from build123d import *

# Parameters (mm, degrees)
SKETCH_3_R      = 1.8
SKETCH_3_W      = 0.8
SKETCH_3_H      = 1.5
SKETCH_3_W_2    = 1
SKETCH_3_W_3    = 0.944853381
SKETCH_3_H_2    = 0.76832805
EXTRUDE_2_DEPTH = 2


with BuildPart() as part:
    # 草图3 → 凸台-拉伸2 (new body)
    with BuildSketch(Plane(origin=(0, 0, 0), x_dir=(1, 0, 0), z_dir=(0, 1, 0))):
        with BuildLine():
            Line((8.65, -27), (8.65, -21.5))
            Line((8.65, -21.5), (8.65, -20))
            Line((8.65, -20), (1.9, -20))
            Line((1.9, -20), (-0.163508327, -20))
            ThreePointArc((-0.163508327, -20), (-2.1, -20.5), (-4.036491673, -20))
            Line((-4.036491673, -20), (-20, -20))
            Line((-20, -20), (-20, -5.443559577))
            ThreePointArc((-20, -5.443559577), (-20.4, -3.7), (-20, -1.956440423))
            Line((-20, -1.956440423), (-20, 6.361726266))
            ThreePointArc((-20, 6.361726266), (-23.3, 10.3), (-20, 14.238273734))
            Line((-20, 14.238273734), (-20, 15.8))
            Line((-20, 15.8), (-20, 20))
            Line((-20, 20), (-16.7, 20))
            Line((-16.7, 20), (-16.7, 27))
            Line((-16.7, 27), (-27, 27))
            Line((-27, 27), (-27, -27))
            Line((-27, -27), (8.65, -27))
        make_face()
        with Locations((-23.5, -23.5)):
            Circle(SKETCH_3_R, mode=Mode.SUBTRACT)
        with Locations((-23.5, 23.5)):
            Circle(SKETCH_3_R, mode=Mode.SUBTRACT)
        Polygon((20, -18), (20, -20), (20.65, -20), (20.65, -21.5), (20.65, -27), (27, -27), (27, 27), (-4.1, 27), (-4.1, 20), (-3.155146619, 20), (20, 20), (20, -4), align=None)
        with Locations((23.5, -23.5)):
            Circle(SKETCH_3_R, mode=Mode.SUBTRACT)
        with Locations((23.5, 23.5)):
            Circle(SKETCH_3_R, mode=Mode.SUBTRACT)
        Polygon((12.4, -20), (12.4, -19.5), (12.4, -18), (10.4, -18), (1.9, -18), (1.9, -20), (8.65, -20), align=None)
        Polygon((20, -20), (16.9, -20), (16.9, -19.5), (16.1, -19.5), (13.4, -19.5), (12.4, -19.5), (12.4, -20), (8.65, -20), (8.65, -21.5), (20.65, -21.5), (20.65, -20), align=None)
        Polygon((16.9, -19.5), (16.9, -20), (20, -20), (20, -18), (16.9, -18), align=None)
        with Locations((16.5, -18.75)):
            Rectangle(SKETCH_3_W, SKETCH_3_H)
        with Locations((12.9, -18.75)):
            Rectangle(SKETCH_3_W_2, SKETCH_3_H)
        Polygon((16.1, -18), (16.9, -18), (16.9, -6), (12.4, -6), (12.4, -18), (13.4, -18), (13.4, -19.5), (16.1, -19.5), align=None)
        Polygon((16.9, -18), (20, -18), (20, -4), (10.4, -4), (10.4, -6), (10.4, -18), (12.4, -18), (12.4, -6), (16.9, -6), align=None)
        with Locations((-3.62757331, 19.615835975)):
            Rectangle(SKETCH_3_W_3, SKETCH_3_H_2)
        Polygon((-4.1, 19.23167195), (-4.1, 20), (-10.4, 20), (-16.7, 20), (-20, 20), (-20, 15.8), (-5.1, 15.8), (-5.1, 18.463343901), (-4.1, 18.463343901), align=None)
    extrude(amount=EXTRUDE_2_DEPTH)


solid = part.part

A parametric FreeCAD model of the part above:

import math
import FreeCAD as App
import Part
import Sketcher

doc = App.newDocument("Part")
params = doc.addObject("Spreadsheet::Sheet", "Params")
for row, (alias, value) in enumerate([
    ("sketch1_radius", "4 mm"),
    ("sketch1_diameter", "3.6 mm"),
    ("sketch1_width", "12 mm"),
    ("sketch1_width2", "1 mm"),
    ("sketch1_height", "54 mm"),
    ("pad1_length", "2 mm"),
], start=1):
    params.set(f"A{row}", alias)
    params.set(f"B{row}", "=" + value)
    params.setAlias(f"B{row}", alias)

body = doc.addObject("PartDesign::Body", "Body")

sketch1 = body.newObject("Sketcher::SketchObject", "Sketch")
sketch1.AttachmentSupport = (doc.getObject("XZ_Plane"), [""])
sketch1.MapMode = "FlatFace"
sketch1.addGeometry([
    Part.LineSegment(App.Vector(8.7, 27, 0), App.Vector(8.7, 21.5, 0)),
    Part.LineSegment(App.Vector(8.7, 21.5, 0), App.Vector(20.6, 21.5, 0)),
    Part.LineSegment(App.Vector(20.6, 21.5, 0), App.Vector(20.6, 27, 0)),
    Part.LineSegment(App.Vector(20.6, 27, 0), App.Vector(27, 27, 0)),
    Part.LineSegment(App.Vector(27, 27, 0), App.Vector(27, -27, 0)),
    Part.LineSegment(App.Vector(27, -27, 0), App.Vector(-4.1, -27, 0)),
    Part.LineSegment(App.Vector(-4.1, -27, 0), App.Vector(-4.1, -20, 0)),
    Part.LineSegment(App.Vector(-4.1, -20, 0), App.Vector(-16.7, -20, 0)),
    Part.LineSegment(App.Vector(-16.7, -20, 0), App.Vector(-16.7, -27, 0)),
    Part.LineSegment(App.Vector(-16.7, -27, 0), App.Vector(-27, -27, 0)),
    Part.LineSegment(App.Vector(-27, -27, 0), App.Vector(-27, 27, 0)),
    Part.LineSegment(App.Vector(-27, 27, 0), App.Vector(8.7, 27, 0)),
    Part.LineSegment(App.Vector(-4.1, -19.2, 0), App.Vector(-3.2, -19.2, 0)),
    Part.LineSegment(App.Vector(-3.2, -19.2, 0), App.Vector(-3.2, -20, 0)),
    Part.LineSegment(App.Vector(-3.2, -20, 0), App.Vector(20, -20, 0)),
    Part.LineSegment(App.Vector(20, -20, 0), App.Vector(20, 4, 0)),
    Part.LineSegment(App.Vector(20, 4, 0), App.Vector(10.4, 4, 0)),
    Part.LineSegment(App.Vector(10.4, 4, 0), App.Vector(10.4, 18, 0)),
    Part.LineSegment(App.Vector(10.4, 18, 0), App.Vector(1.9, 18, 0)),
    Part.LineSegment(App.Vector(1.9, 18, 0), App.Vector(1.9, 20, 0)),
    Part.LineSegment(App.Vector(1.9, 20, 0), App.Vector(-0.2, 20, 0)),
    Part.ArcOfCircle(Part.Circle(App.Vector(-2.1, 16.5, 0), App.Vector(0, 0, 1), 4), math.radians(61), math.radians(119)),
    Part.LineSegment(App.Vector(-4, 20, 0), App.Vector(-20, 20, 0)),
    Part.LineSegment(App.Vector(-20, 20, 0), App.Vector(-20, 5.4, 0)),
    Part.ArcOfCircle(Part.Circle(App.Vector(-16.4, 3.7, 0), App.Vector(0, 0, 1), 4), math.radians(154), math.radians(206)),
    Part.LineSegment(App.Vector(-20, 2, 0), App.Vector(-20, -6.4, 0)),
    Part.ArcOfCircle(Part.Circle(App.Vector(-19.3, -10.3, 0), App.Vector(0, 0, 1), 4), math.radians(100), math.radians(260)),
    Part.LineSegment(App.Vector(-20, -14.2, 0), App.Vector(-20, -15.8, 0)),
    Part.LineSegment(App.Vector(-20, -15.8, 0), App.Vector(-5.1, -15.8, 0)),
    Part.LineSegment(App.Vector(-5.1, -15.8, 0), App.Vector(-5.1, -18.5, 0)),
    Part.LineSegment(App.Vector(-5.1, -18.5, 0), App.Vector(-4.1, -18.5, 0)),
    Part.LineSegment(App.Vector(-4.1, -18.5, 0), App.Vector(-4.1, -19.2, 0)),
    Part.Circle(App.Vector(-23.5, 23.5, 0), App.Vector(0, 0, 1), 1.8),
    Part.Circle(App.Vector(-23.5, -23.5, 0), App.Vector(0, 0, 1), 1.8),
    Part.Circle(App.Vector(23.5, 23.5, 0), App.Vector(0, 0, 1), 1.8),
    Part.Circle(App.Vector(23.5, -23.5, 0), App.Vector(0, 0, 1), 1.8),
], False)
sketch1.addConstraint([
    Sketcher.Constraint("Coincident", 0, 2, 1, 1),
    Sketcher.Constraint("Coincident", 1, 2, 2, 1),
    Sketcher.Constraint("Coincident", 2, 2, 3, 1),
    Sketcher.Constraint("Coincident", 3, 2, 4, 1),
    Sketcher.Constraint("Coincident", 4, 2, 5, 1),
    Sketcher.Constraint("Coincident", 5, 2, 6, 1),
    Sketcher.Constraint("Coincident", 6, 2, 7, 1),
    Sketcher.Constraint("Coincident", 7, 2, 8, 1),
    Sketcher.Constraint("Coincident", 8, 2, 9, 1),
    Sketcher.Constraint("Coincident", 9, 2, 10, 1),
    Sketcher.Constraint("Coincident", 10, 2, 11, 1),
    Sketcher.Constraint("Coincident", 11, 2, 0, 1),
    Sketcher.Constraint("Coincident", 12, 2, 13, 1),
    Sketcher.Constraint("Coincident", 13, 2, 14, 1),
    Sketcher.Constraint("Coincident", 14, 2, 15, 1),
    Sketcher.Constraint("Coincident", 15, 2, 16, 1),
    Sketcher.Constraint("Coincident", 16, 2, 17, 1),
    Sketcher.Constraint("Coincident", 17, 2, 18, 1),
    Sketcher.Constraint("Coincident", 18, 2, 19, 1),
    Sketcher.Constraint("Coincident", 19, 2, 20, 1),
    Sketcher.Constraint("Coincident", 20, 2, 21, 1),
    Sketcher.Constraint("Coincident", 21, 2, 22, 1),
    Sketcher.Constraint("Coincident", 22, 2, 23, 1),
    Sketcher.Constraint("Coincident", 23, 2, 24, 1),
    Sketcher.Constraint("Coincident", 24, 2, 25, 1),
    Sketcher.Constraint("Coincident", 25, 2, 26, 1),
    Sketcher.Constraint("Coincident", 26, 2, 27, 1),
    Sketcher.Constraint("Coincident", 27, 2, 28, 1),
    Sketcher.Constraint("Coincident", 28, 2, 29, 1),
    Sketcher.Constraint("Coincident", 29, 2, 30, 1),
    Sketcher.Constraint("Coincident", 30, 2, 31, 1),
    Sketcher.Constraint("Coincident", 31, 2, 12, 1),
    Sketcher.Constraint("Vertical", 0),
    Sketcher.Constraint("Horizontal", 1),
    Sketcher.Constraint("Vertical", 2),
    Sketcher.Constraint("Horizontal", 3),
    Sketcher.Constraint("Vertical", 4),
    Sketcher.Constraint("Horizontal", 5),
    Sketcher.Constraint("Vertical", 6),
    Sketcher.Constraint("Horizontal", 7),
    Sketcher.Constraint("Vertical", 8),
    Sketcher.Constraint("Horizontal", 9),
    Sketcher.Constraint("Vertical", 10),
    Sketcher.Constraint("Horizontal", 11),
    Sketcher.Constraint("Horizontal", 12),
    Sketcher.Constraint("Vertical", 13),
    Sketcher.Constraint("Horizontal", 14),
    Sketcher.Constraint("Vertical", 15),
    Sketcher.Constraint("Horizontal", 16),
    Sketcher.Constraint("Vertical", 17),
    Sketcher.Constraint("Horizontal", 18),
    Sketcher.Constraint("Vertical", 19),
    Sketcher.Constraint("Horizontal", 20),
    Sketcher.Constraint("Horizontal", 22),
    Sketcher.Constraint("Vertical", 23),
    Sketcher.Constraint("Vertical", 25),
    Sketcher.Constraint("Vertical", 27),
    Sketcher.Constraint("Horizontal", 28),
    Sketcher.Constraint("Vertical", 29),
    Sketcher.Constraint("Horizontal", 30),
    Sketcher.Constraint("Vertical", 31),
    Sketcher.Constraint("Equal", 21, 24),
    Sketcher.Constraint("Equal", 24, 26),
    Sketcher.Constraint("Equal", 32, 33),
    Sketcher.Constraint("Equal", 33, 34),
    Sketcher.Constraint("Equal", 34, 35),
    Sketcher.Constraint("Symmetric", 33, 3, 34, 3, -1, 1),
    Sketcher.Constraint("Symmetric", 32, 3, 35, 3, -1, 1),
    Sketcher.Constraint("Symmetric", 3, 2, 9, 2, -1, 1),
    Sketcher.Constraint("Symmetric", 14, 2, 22, 2, -1, 1),
    Sketcher.Constraint("Symmetric", 32, 3, 34, 3, -2),
    Sketcher.Constraint("Horizontal", 5, 2, 8, 2),
    Sketcher.Constraint("Horizontal", 3, 2, 10, 2),
    Sketcher.Constraint("Horizontal", 7, 2, 13, 2),
    Sketcher.Constraint("Horizontal", 20, 2, 21, 2),
    Sketcher.Constraint("Vertical", 23, 2, 24, 2),
    Sketcher.Constraint("Vertical", 25, 2, 26, 2),
    Sketcher.Constraint("Vertical", 6, 2, 30, 2),
    Sketcher.Constraint("Equal", 13, 31),
    Sketcher.Constraint("Radius", 21, 4.0),
    Sketcher.Constraint("Diameter", 32, 3.6),
    Sketcher.Constraint("DistanceX", 1, 1, 1, 2, 12.0),
    Sketcher.Constraint("DistanceX", 30, 1, 30, 2, 1.0),
    Sketcher.Constraint("DistanceY", 4, 2, 4, 1, 54.0),
    Sketcher.Constraint("DistanceY", 6, 1, 6, 2, 7.0),
    Sketcher.Constraint("DistanceY", 15, 1, 15, 2, 24.0),
    Sketcher.Constraint("DistanceY", 17, 1, 17, 2, 14.0),
    Sketcher.Constraint("DistanceX", 5, 2, 5, 1, 31.1),
    Sketcher.Constraint("DistanceX", 7, 2, 7, 1, 12.6),
    Sketcher.Constraint("DistanceX", 9, 2, 9, 1, 10.3),
    Sketcher.Constraint("DistanceX", 16, 2, 16, 1, 9.6),
    Sketcher.Constraint("DistanceX", 18, 2, 18, 1, 8.5),
    Sketcher.Constraint("DistanceX", 28, 1, 28, 2, 14.9),
    Sketcher.Constraint("DistanceY", 0, 2, 0, 1, 5.5),
    Sketcher.Constraint("DistanceY", 26, 3, 24, 3, 14.0),
    Sketcher.Constraint("DistanceY", 21, 3, 32, 3, 7.0),
    Sketcher.Constraint("DistanceY", 33, 3, 21, 3, 40.0),
    Sketcher.Constraint("DistanceX", 32, 3, 34, 3, 47.0),
    Sketcher.Constraint("DistanceX", 21, 3, 18, 2, 4.0),
    Sketcher.Constraint("DistanceX", 3, 1, 3, 2, 6.35),
    Sketcher.Constraint("DistanceX", 24, 3, -1, 1, 16.4),
    Sketcher.Constraint("DistanceY", -1, 1, 24, 3, 3.7),
    Sketcher.Constraint("DistanceX", 26, 3, -1, 1, 19.3),
    Sketcher.Constraint("DistanceY", 27, 2, -1, 1, 15.8),
    Sketcher.Constraint("DistanceY", 13, 2, 13, 1, 0.768328),
    Sketcher.Constraint("DistanceX", 12, 1, 12, 2, 0.944853),
])
sketch1.setExpression("Constraints[79]", "Params.sketch1_radius")
sketch1.setExpression("Constraints[80]", "Params.sketch1_diameter")
sketch1.setExpression("Constraints[81]", "Params.sketch1_width")
sketch1.setExpression("Constraints[82]", "Params.sketch1_width2")
sketch1.setExpression("Constraints[83]", "Params.sketch1_height")
pad1 = body.newObject("PartDesign::Pad", "Pad")
pad1.Profile = sketch1
pad1.setExpression("Length", "Params.pad1_length")
pad1.Reversed = True

doc.recompute()
